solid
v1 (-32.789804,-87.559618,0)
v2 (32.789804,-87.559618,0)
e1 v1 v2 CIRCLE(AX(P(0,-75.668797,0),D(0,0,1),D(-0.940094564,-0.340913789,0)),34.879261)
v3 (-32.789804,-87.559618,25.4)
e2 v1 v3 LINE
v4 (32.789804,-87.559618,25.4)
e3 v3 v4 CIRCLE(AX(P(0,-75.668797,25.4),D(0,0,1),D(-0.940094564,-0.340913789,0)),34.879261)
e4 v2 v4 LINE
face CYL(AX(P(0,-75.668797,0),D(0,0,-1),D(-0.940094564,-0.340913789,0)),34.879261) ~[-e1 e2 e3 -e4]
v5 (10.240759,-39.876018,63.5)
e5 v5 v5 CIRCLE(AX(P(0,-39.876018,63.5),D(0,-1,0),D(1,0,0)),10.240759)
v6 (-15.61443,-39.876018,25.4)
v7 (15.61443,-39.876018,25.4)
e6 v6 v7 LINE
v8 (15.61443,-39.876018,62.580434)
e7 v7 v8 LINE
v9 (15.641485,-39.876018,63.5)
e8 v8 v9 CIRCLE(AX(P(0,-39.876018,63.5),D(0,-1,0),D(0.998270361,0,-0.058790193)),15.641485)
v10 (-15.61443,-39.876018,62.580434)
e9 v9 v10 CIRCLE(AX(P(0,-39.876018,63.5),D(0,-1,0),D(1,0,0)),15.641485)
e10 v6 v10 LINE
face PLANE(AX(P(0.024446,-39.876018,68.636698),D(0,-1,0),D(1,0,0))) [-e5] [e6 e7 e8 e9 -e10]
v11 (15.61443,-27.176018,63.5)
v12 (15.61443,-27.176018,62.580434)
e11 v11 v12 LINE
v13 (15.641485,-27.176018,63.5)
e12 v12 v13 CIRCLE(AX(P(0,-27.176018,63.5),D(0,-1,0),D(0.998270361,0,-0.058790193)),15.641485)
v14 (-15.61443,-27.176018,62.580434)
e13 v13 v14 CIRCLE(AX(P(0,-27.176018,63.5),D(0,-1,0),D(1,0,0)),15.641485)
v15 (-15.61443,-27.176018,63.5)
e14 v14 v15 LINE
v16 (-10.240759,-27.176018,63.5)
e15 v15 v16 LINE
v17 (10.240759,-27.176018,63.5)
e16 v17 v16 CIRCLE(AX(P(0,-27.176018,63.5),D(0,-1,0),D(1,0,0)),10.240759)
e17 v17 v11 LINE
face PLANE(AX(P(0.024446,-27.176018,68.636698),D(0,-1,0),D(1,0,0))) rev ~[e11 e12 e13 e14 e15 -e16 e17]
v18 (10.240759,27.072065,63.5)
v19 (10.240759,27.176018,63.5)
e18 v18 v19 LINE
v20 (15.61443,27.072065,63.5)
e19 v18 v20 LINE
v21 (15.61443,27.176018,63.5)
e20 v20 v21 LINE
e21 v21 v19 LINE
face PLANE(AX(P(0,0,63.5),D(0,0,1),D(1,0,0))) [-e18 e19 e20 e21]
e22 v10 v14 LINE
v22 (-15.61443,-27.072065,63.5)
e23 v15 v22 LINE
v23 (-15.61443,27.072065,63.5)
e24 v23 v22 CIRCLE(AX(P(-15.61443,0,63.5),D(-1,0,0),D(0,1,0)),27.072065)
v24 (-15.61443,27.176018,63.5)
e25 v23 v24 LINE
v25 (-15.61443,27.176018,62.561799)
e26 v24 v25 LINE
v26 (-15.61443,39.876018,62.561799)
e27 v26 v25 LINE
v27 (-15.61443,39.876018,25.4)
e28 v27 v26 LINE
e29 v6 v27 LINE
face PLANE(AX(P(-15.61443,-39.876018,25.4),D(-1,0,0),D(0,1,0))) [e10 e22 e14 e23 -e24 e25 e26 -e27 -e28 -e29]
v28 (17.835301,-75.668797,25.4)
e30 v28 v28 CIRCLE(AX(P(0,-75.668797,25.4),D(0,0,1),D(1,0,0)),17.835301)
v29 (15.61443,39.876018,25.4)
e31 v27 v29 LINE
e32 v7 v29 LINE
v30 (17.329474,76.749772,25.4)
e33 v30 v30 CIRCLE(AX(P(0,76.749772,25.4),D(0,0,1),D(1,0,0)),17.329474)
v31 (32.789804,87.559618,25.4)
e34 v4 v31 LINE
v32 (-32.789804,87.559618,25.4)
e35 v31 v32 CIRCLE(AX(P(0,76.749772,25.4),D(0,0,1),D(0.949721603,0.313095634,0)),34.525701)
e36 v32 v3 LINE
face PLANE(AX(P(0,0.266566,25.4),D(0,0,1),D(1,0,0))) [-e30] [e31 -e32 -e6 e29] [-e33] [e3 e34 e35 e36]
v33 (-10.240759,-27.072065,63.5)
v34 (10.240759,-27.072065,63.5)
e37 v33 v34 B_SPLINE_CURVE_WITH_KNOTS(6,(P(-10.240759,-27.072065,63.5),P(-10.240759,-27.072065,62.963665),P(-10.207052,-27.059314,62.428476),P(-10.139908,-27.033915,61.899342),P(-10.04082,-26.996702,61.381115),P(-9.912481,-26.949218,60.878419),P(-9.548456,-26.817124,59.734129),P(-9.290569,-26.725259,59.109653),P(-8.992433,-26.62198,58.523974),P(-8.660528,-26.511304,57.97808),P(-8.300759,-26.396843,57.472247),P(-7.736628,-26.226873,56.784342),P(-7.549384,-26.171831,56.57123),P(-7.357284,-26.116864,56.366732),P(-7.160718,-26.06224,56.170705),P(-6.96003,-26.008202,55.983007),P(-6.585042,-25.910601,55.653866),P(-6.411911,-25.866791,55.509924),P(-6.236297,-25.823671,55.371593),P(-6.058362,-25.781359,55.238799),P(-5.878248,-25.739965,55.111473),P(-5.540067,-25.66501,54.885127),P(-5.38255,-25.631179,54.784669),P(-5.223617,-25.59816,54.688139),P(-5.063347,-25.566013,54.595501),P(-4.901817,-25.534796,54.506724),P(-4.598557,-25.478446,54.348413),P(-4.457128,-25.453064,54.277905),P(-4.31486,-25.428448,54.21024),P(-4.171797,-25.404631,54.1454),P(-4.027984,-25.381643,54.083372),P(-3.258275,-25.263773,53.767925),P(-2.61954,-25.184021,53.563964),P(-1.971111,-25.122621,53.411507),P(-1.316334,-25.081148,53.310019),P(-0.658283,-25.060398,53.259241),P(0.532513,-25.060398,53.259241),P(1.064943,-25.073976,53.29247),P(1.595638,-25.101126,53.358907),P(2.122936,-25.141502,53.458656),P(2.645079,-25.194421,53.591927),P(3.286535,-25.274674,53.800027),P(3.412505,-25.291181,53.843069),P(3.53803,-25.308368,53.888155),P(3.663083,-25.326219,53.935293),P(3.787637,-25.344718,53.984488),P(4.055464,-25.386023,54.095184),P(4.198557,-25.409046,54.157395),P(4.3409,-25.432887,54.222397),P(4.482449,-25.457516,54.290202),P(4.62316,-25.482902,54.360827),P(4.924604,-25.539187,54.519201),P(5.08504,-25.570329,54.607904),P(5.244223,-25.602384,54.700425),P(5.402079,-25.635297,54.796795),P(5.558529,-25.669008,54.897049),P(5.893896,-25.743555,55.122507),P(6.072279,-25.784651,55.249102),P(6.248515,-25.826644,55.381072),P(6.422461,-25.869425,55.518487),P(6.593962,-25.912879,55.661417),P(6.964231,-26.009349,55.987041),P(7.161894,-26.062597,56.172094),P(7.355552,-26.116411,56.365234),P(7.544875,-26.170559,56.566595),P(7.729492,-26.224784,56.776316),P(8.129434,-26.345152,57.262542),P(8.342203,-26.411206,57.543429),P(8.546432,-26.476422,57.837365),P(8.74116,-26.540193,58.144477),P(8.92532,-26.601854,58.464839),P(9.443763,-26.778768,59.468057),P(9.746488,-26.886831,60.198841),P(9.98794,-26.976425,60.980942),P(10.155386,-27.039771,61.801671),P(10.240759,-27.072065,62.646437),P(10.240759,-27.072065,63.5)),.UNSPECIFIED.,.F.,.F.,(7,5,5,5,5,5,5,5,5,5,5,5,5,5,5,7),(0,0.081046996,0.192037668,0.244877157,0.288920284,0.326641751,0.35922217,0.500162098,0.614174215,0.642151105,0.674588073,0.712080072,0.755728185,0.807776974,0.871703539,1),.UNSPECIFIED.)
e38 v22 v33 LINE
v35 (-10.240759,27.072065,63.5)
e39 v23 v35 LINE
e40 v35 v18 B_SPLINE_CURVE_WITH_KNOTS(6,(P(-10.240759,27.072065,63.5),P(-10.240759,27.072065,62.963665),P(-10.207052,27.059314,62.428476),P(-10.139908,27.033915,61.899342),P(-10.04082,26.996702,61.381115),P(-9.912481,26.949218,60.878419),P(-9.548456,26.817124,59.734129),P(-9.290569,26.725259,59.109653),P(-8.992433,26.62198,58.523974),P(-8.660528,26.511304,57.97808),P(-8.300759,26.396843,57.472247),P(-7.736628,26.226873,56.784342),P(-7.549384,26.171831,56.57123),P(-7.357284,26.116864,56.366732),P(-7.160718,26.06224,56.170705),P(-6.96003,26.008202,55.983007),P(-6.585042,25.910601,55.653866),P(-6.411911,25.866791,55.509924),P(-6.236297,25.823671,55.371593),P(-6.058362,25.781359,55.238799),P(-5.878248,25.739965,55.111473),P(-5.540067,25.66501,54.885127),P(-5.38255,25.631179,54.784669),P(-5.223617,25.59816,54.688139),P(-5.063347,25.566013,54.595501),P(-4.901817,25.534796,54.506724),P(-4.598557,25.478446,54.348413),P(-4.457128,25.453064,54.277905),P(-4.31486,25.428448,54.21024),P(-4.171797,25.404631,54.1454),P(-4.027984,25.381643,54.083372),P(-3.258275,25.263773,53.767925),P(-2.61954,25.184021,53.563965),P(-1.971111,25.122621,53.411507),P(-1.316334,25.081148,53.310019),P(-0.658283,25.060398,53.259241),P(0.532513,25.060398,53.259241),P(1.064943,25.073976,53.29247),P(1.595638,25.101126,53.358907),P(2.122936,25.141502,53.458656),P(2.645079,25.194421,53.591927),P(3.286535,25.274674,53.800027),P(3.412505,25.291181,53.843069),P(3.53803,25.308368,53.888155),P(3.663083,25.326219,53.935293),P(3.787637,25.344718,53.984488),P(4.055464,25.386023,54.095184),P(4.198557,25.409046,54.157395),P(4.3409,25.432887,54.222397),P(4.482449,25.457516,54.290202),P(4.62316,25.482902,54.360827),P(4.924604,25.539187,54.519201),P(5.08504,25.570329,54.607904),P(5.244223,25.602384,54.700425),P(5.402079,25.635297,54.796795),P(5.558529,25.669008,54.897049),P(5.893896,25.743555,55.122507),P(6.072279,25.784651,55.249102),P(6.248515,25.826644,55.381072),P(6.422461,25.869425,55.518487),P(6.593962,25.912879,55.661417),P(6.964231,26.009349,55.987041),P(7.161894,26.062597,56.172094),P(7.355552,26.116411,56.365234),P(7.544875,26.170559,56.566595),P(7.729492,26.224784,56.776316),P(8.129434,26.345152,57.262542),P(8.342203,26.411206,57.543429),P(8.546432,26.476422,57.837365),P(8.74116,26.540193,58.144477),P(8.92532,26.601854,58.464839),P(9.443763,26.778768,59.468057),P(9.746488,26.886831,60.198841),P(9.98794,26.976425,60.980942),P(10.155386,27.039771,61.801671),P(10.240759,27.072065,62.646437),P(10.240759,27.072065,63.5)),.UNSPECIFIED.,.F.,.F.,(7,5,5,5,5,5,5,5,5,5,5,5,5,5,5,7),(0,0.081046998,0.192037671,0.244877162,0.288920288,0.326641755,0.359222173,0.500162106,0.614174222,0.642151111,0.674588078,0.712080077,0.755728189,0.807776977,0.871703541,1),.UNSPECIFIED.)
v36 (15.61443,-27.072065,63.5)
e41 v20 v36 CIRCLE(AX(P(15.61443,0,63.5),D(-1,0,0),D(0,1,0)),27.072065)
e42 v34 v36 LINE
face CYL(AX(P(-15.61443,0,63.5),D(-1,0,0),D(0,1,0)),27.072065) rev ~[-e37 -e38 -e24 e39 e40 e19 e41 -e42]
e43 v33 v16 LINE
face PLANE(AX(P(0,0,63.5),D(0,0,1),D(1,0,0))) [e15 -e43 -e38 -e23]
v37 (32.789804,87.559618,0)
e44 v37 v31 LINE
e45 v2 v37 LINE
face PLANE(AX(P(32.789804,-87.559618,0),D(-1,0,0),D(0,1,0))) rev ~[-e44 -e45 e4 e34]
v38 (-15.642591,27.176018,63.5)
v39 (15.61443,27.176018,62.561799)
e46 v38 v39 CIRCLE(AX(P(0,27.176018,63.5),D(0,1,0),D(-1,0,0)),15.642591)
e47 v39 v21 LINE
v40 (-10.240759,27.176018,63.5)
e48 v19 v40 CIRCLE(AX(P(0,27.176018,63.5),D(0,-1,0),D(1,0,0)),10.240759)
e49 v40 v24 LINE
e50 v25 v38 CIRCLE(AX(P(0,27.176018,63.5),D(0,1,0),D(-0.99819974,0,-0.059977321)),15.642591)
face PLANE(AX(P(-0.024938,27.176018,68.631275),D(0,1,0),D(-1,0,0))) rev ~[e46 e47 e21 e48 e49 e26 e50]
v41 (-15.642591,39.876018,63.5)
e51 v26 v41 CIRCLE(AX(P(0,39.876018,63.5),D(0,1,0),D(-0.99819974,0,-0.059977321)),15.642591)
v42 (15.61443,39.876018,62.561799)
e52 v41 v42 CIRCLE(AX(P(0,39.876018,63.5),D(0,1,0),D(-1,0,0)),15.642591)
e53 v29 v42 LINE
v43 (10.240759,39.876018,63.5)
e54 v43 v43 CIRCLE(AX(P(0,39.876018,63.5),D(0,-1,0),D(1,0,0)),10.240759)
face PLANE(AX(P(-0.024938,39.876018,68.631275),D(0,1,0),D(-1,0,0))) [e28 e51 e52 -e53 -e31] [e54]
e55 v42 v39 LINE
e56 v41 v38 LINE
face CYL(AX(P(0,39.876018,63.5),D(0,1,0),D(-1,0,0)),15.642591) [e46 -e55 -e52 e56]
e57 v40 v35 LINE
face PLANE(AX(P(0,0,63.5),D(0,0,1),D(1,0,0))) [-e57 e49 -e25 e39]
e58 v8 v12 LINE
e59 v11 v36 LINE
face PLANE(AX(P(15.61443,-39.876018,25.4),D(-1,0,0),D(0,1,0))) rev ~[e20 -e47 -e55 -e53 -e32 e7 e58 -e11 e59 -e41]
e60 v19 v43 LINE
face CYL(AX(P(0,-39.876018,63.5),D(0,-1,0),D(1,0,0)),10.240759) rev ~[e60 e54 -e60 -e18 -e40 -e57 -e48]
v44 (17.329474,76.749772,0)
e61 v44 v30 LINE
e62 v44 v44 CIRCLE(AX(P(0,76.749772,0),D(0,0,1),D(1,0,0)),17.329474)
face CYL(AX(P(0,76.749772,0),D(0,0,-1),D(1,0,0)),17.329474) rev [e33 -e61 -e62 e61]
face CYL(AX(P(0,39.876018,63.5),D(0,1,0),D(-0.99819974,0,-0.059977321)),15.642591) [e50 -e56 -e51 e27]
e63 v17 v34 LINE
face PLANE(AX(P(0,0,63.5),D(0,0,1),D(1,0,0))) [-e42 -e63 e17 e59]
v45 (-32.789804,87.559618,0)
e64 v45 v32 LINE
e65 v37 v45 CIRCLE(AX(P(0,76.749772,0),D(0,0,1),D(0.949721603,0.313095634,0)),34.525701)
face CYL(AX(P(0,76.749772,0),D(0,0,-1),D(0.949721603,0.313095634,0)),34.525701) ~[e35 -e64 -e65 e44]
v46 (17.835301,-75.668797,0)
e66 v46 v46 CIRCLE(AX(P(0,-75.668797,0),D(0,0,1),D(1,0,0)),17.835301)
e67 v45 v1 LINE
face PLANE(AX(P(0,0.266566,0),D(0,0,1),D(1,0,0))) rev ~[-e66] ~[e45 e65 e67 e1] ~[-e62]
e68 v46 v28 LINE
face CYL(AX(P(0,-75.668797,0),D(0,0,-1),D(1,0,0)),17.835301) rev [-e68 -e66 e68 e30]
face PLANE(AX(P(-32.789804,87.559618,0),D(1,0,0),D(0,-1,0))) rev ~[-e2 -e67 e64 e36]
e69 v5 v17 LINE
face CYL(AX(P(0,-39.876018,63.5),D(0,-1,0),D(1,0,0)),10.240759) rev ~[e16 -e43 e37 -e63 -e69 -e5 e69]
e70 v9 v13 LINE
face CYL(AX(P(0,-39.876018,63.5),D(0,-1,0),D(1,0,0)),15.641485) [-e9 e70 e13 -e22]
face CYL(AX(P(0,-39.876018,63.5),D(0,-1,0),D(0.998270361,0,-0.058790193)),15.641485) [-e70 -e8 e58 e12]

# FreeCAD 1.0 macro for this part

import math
import FreeCAD as App
import Part
import Sketcher
Q = App.Units.Quantity

doc = App.newDocument("Part")
body = doc.addObject("PartDesign::Body", "Body")

# Sketch on XY plane
sketch1 = body.newObject("Sketcher::SketchObject", "Sketch")
sketch1.AttachmentSupport = (doc.getObject("XY_Plane"), [""])
sketch1.MapMode = "FlatFace"
sketch1.addGeometry(Part.LineSegment(App.Vector(33, -88, 0), App.Vector(33, 88, 0)), False)
sketch1.addGeometry(Part.ArcOfCircle(Part.Circle(App.Vector(0, 77, 0), App.Vector(0, 0, 1), 35), math.radians(18), math.radians(162)), False)
sketch1.addGeometry(Part.LineSegment(App.Vector(-33, 88, 0), App.Vector(-33, -88, 0)), False)
sketch1.addGeometry(Part.ArcOfCircle(Part.Circle(App.Vector(0, -76, 0), App.Vector(0, 0, 1), 35), math.radians(-160), math.radians(-20)), False)
sketch1.addGeometry(Part.Circle(App.Vector(0, -76, 0), App.Vector(0, 0, 1), 18), False)
sketch1.addGeometry(Part.Circle(App.Vector(0, 77, 0), App.Vector(0, 0, 1), 17), False)
sketch1.addConstraint(Sketcher.Constraint("Coincident", 0, 2, 1, 1))
sketch1.addConstraint(Sketcher.Constraint("Coincident", 1, 2, 2, 1))
sketch1.addConstraint(Sketcher.Constraint("Coincident", 2, 2, 3, 1))
sketch1.addConstraint(Sketcher.Constraint("Coincident", 3, 2, 0, 1))
sketch1.addConstraint(Sketcher.Constraint("Vertical", 0))
sketch1.addConstraint(Sketcher.Constraint("Vertical", 2))
sketch1.addConstraint(Sketcher.Constraint("Coincident", 4, 3, 3, 3))
sketch1.addConstraint(Sketcher.Constraint("Coincident", 5, 3, 1, 3))
sketch1.addConstraint(Sketcher.Constraint("Symmetric", 0, 2, 2, 2, -1, 1))
sketch1.addConstraint(Sketcher.Constraint("PointOnObject", 1, 3, -2))
sketch1.addConstraint(Sketcher.Constraint("PointOnObject", 3, 3, -2))
sketch1.addConstraint(Sketcher.Constraint("Radius", 1, 34.525701))
sketch1.addConstraint(Sketcher.Constraint("Radius", 3, 34.879261))
sketch1.addConstraint(Sketcher.Constraint("Diameter", 4, 35.670603))
sketch1.addConstraint(Sketcher.Constraint("Diameter", 5, 34.658948))
sketch1.addConstraint(Sketcher.Constraint("DistanceY", 0, 1, 0, 2, 175.119236))
sketch1.addConstraint(Sketcher.Constraint("DistanceY", -1, 1, 1, 3, 76.749772))
pad1 = body.newObject("PartDesign::Pad", "Pad")
pad1.Profile = sketch1
pad1.Length = Q("1 in")

# Sketch on XY plane
sketch2 = body.newObject("Sketcher::SketchObject", "Sketch001")
sketch2.AttachmentSupport = (doc.getObject("XY_Plane"), [""])
sketch2.MapMode = "FlatFace"
sketch2.AttachmentOffset = App.Placement(App.Vector(0, 0, 1 * 25.4), App.Rotation())
sketch2.addGeometry(Part.LineSegment(App.Vector(-16, 40, 0), App.Vector(-16, -40, 0)), False)
sketch2.addGeometry(Part.LineSegment(App.Vector(-16, -40, 0), App.Vector(16, -40, 0)), False)
sketch2.addGeometry(Part.LineSegment(App.Vector(16, -40, 0), App.Vector(16, 40, 0)), False)
sketch2.addGeometry(Part.LineSegment(App.Vector(16, 40, 0), App.Vector(-16, 40, 0)), False)
sketch2.addConstraint(Sketcher.Constraint("Coincident", 0, 2, 1, 1))
sketch2.addConstraint(Sketcher.Constraint("Coincident", 1, 2, 2, 1))
sketch2.addConstraint(Sketcher.Constraint("Coincident", 2, 2, 3, 1))
sketch2.addConstraint(Sketcher.Constraint("Coincident", 3, 2, 0, 1))
sketch2.addConstraint(Sketcher.Constraint("Vertical", 0))
sketch2.addConstraint(Sketcher.Constraint("Horizontal", 1))
sketch2.addConstraint(Sketcher.Constraint("Vertical", 2))
sketch2.addConstraint(Sketcher.Constraint("Horizontal", 3))
sketch2.addConstraint(Sketcher.Constraint("Symmetric", 0, 2, 2, 2, -1, 1))
sketch2.addConstraint(Sketcher.Constraint("DistanceX", 1, 1, 1, 2, 31.228861))
sketch2.addConstraint(Sketcher.Constraint("DistanceY", 0, 2, 0, 1, 79.752035))
pad2 = body.newObject("PartDesign::Pad", "Pad001")
pad2.Profile = sketch2
pad2.Length = Q("1.5 in")

# Sketch on YZ plane
sketch3 = body.newObject("Sketcher::SketchObject", "Sketch002")
sketch3.AttachmentSupport = (doc.getObject("YZ_Plane"), [""])
sketch3.MapMode = "FlatFace"
sketch3.AttachmentOffset = App.Placement(App.Vector(0, 0, -15.61443), App.Rotation())
sketch3.addGeometry(Part.ArcOfCircle(Part.Circle(App.Vector(0, 64, 0), App.Vector(0, 0, 1), 27), math.radians(180), math.radians(360)), False)
sketch3.addGeometry(Part.LineSegment(App.Vector(-27, 64, 0), App.Vector(27, 64, 0)), False)
sketch3.addConstraint(Sketcher.Constraint("Coincident", 0, 1, 1, 1))
sketch3.addConstraint(Sketcher.Constraint("Coincident", 1, 2, 0, 2))
sketch3.addConstraint(Sketcher.Constraint("Horizontal", 1))
sketch3.addConstraint(Sketcher.Constraint("PointOnObject", 0, 3, -2))
sketch3.addConstraint(Sketcher.Constraint("DistanceY", -1, 1, 0, 3, Q("2.5 in")))
sketch3.addConstraint(Sketcher.Constraint("DistanceY", -1, 1, 0, 1, Q("2.5 in")))
sketch3.addConstraint(Sketcher.Constraint("Radius", 0, 27.072065))
pocket1 = body.newObject("PartDesign::Pocket", "Pocket")
pocket1.Profile = sketch3
pocket1.Length = Q("2 in")
pocket1.Reversed = True

# Sketch on XZ plane
sketch4 = body.newObject("Sketcher::SketchObject", "Sketch003")
sketch4.AttachmentSupport = (doc.getObject("XZ_Plane"), [""])
sketch4.MapMode = "FlatFace"
sketch4.AttachmentOffset = App.Placement(App.Vector(0, 0, -39.876018), App.Rotation())
sketch4.addGeometry(Part.ArcOfCircle(Part.Circle(App.Vector(0, 63.5, 0), App.Vector(0, 0, 1), 15.6), math.radians(-180), math.radians(-176.56)), False)
sketch4.addGeometry(Part.ArcOfCircle(Part.Circle(App.Vector(0, 63.5, 0), App.Vector(0, 0, 1), 15.6), math.radians(-3), math.radians(180)), False)
sketch4.addGeometry(Part.LineSegment(App.Vector(15.6, 62.6, 0), App.Vector(15.6, 63.5, 0)), False)
sketch4.addGeometry(Part.LineSegment(App.Vector(15.6, 63.5, 0), App.Vector(-15.6, 63.5, 0)), False)
sketch4.addGeometry(Part.LineSegment(App.Vector(-15.6, 63.5, 0), App.Vector(-15.6, 62.6, 0)), False)
sketch4.addConstraint(Sketcher.Constraint("Tangent", 0, 1, 1, 2))
sketch4.addConstraint(Sketcher.Constraint("Coincident", 1, 1, 2, 1))
sketch4.addConstraint(Sketcher.Constraint("Coincident", 2, 2, 3, 1))
sketch4.addConstraint(Sketcher.Constraint("Coincident", 3, 2, 4, 1))
sketch4.addConstraint(Sketcher.Constraint("Coincident", 4, 2, 0, 2))
sketch4.addConstraint(Sketcher.Constraint("Vertical", 2))
sketch4.addConstraint(Sketcher.Constraint("Horizontal", 3))
sketch4.addConstraint(Sketcher.Constraint("Vertical", 4))
sketch4.addConstraint(Sketcher.Constraint("Equal", 0, 1))
sketch4.addConstraint(Sketcher.Constraint("Symmetric", 1, 1, 4, 2, -2))
sketch4.addConstraint(Sketcher.Constraint("Horizontal", 1, 3, 0, 1))
sketch4.addConstraint(Sketcher.Constraint("Horizontal", 0, 1, 2, 2))
sketch4.addConstraint(Sketcher.Constraint("DistanceY", -1, 1, 0, 3, Q("2.5 in")))
sketch4.addConstraint(Sketcher.Constraint("Radius", 0, 15.642591))
sketch4.addConstraint(Sketcher.Constraint("DistanceY", 2, 1, 2, 2, 0.938201))
pad3 = body.newObject("PartDesign::Pad", "Pad002")
pad3.Profile = sketch4
pad3.Length = Q("0.5 in")

# Sketch on XZ plane
sketch5 = body.newObject("Sketcher::SketchObject", "Sketch004")
sketch5.AttachmentSupport = (doc.getObject("XZ_Plane"), [""])
sketch5.MapMode = "FlatFace"
sketch5.AttachmentOffset = App.Placement(App.Vector(0, 0, 39.876018), App.Rotation())
sketch5.addGeometry(Part.ArcOfCircle(Part.Circle(App.Vector(0, 63.5, 0), App.Vector(0, 0, 1), 15.6), math.radians(-3.37), math.radians(0)), False)
sketch5.addGeometry(Part.ArcOfCircle(Part.Circle(App.Vector(0, 63.5, 0), App.Vector(0, 0, 1), 15.6), math.radians(0), math.radians(183)), False)
sketch5.addGeometry(Part.LineSegment(App.Vector(-15.6, 62.6, 0), App.Vector(-15.6, 63.5, 0)), False)
sketch5.addGeometry(Part.LineSegment(App.Vector(-15.6, 63.5, 0), App.Vector(15.6, 63.5, 0)), False)
sketch5.addGeometry(Part.LineSegment(App.Vector(15.6, 63.5, 0), App.Vector(15.6, 62.6, 0)), False)
sketch5.addConstraint(Sketcher.Constraint("Tangent", 0, 2, 1, 1))
sketch5.addConstraint(Sketcher.Constraint("Coincident", 1, 2, 2, 1))
sketch5.addConstraint(Sketcher.Constraint("Coincident", 2, 2, 3, 1))
sketch5.addConstraint(Sketcher.Constraint("Coincident", 3, 2, 4, 1))
sketch5.addConstraint(Sketcher.Constraint("Coincident", 4, 2, 0, 1))
sketch5.addConstraint(Sketcher.Constraint("Vertical", 2))
sketch5.addConstraint(Sketcher.Constraint("Horizontal", 3))
sketch5.addConstraint(Sketcher.Constraint("Vertical", 4))
sketch5.addConstraint(Sketcher.Constraint("Equal", 0, 1))
sketch5.addConstraint(Sketcher.Constraint("Symmetric", 1, 2, 4, 2, -2))
sketch5.addConstraint(Sketcher.Constraint("Horizontal", 1, 3, 0, 2))
sketch5.addConstraint(Sketcher.Constraint("Horizontal", 0, 2, 2, 2))
sketch5.addConstraint(Sketcher.Constraint("DistanceY", -1, 1, 0, 3, Q("2.5 in")))
sketch5.addConstraint(Sketcher.Constraint("Radius", 0, 15.641485))
sketch5.addConstraint(Sketcher.Constraint("DistanceX", 3, 1, 3, 2, 31.228861))
pad4 = body.newObject("PartDesign::Pad", "Pad003")
pad4.Profile = sketch5
pad4.Length = Q("0.5 in")
pad4.Reversed = True

# Sketch on XZ plane
sketch6 = body.newObject("Sketcher::SketchObject", "Sketch005")
sketch6.AttachmentSupport = (doc.getObject("XZ_Plane"), [""])
sketch6.MapMode = "FlatFace"
sketch6.AttachmentOffset = App.Placement(App.Vector(0, 0, 39.876018), App.Rotation())
sketch6.addGeometry(Part.Circle(App.Vector(0, 64, 0), App.Vector(0, 0, 1), 10), False)
sketch6.addConstraint(Sketcher.Constraint("PointOnObject", 0, 3, -2))
sketch6.addConstraint(Sketcher.Constraint("DistanceY", -1, 1, 0, 3, Q("2.5 in")))
sketch6.addConstraint(Sketcher.Constraint("Diameter", 0, 20.481518))
pocket2 = body.newObject("PartDesign::Pocket", "Pocket001")
pocket2.Profile = sketch6
pocket2.Length = Q("50 in")

doc.recompute()
